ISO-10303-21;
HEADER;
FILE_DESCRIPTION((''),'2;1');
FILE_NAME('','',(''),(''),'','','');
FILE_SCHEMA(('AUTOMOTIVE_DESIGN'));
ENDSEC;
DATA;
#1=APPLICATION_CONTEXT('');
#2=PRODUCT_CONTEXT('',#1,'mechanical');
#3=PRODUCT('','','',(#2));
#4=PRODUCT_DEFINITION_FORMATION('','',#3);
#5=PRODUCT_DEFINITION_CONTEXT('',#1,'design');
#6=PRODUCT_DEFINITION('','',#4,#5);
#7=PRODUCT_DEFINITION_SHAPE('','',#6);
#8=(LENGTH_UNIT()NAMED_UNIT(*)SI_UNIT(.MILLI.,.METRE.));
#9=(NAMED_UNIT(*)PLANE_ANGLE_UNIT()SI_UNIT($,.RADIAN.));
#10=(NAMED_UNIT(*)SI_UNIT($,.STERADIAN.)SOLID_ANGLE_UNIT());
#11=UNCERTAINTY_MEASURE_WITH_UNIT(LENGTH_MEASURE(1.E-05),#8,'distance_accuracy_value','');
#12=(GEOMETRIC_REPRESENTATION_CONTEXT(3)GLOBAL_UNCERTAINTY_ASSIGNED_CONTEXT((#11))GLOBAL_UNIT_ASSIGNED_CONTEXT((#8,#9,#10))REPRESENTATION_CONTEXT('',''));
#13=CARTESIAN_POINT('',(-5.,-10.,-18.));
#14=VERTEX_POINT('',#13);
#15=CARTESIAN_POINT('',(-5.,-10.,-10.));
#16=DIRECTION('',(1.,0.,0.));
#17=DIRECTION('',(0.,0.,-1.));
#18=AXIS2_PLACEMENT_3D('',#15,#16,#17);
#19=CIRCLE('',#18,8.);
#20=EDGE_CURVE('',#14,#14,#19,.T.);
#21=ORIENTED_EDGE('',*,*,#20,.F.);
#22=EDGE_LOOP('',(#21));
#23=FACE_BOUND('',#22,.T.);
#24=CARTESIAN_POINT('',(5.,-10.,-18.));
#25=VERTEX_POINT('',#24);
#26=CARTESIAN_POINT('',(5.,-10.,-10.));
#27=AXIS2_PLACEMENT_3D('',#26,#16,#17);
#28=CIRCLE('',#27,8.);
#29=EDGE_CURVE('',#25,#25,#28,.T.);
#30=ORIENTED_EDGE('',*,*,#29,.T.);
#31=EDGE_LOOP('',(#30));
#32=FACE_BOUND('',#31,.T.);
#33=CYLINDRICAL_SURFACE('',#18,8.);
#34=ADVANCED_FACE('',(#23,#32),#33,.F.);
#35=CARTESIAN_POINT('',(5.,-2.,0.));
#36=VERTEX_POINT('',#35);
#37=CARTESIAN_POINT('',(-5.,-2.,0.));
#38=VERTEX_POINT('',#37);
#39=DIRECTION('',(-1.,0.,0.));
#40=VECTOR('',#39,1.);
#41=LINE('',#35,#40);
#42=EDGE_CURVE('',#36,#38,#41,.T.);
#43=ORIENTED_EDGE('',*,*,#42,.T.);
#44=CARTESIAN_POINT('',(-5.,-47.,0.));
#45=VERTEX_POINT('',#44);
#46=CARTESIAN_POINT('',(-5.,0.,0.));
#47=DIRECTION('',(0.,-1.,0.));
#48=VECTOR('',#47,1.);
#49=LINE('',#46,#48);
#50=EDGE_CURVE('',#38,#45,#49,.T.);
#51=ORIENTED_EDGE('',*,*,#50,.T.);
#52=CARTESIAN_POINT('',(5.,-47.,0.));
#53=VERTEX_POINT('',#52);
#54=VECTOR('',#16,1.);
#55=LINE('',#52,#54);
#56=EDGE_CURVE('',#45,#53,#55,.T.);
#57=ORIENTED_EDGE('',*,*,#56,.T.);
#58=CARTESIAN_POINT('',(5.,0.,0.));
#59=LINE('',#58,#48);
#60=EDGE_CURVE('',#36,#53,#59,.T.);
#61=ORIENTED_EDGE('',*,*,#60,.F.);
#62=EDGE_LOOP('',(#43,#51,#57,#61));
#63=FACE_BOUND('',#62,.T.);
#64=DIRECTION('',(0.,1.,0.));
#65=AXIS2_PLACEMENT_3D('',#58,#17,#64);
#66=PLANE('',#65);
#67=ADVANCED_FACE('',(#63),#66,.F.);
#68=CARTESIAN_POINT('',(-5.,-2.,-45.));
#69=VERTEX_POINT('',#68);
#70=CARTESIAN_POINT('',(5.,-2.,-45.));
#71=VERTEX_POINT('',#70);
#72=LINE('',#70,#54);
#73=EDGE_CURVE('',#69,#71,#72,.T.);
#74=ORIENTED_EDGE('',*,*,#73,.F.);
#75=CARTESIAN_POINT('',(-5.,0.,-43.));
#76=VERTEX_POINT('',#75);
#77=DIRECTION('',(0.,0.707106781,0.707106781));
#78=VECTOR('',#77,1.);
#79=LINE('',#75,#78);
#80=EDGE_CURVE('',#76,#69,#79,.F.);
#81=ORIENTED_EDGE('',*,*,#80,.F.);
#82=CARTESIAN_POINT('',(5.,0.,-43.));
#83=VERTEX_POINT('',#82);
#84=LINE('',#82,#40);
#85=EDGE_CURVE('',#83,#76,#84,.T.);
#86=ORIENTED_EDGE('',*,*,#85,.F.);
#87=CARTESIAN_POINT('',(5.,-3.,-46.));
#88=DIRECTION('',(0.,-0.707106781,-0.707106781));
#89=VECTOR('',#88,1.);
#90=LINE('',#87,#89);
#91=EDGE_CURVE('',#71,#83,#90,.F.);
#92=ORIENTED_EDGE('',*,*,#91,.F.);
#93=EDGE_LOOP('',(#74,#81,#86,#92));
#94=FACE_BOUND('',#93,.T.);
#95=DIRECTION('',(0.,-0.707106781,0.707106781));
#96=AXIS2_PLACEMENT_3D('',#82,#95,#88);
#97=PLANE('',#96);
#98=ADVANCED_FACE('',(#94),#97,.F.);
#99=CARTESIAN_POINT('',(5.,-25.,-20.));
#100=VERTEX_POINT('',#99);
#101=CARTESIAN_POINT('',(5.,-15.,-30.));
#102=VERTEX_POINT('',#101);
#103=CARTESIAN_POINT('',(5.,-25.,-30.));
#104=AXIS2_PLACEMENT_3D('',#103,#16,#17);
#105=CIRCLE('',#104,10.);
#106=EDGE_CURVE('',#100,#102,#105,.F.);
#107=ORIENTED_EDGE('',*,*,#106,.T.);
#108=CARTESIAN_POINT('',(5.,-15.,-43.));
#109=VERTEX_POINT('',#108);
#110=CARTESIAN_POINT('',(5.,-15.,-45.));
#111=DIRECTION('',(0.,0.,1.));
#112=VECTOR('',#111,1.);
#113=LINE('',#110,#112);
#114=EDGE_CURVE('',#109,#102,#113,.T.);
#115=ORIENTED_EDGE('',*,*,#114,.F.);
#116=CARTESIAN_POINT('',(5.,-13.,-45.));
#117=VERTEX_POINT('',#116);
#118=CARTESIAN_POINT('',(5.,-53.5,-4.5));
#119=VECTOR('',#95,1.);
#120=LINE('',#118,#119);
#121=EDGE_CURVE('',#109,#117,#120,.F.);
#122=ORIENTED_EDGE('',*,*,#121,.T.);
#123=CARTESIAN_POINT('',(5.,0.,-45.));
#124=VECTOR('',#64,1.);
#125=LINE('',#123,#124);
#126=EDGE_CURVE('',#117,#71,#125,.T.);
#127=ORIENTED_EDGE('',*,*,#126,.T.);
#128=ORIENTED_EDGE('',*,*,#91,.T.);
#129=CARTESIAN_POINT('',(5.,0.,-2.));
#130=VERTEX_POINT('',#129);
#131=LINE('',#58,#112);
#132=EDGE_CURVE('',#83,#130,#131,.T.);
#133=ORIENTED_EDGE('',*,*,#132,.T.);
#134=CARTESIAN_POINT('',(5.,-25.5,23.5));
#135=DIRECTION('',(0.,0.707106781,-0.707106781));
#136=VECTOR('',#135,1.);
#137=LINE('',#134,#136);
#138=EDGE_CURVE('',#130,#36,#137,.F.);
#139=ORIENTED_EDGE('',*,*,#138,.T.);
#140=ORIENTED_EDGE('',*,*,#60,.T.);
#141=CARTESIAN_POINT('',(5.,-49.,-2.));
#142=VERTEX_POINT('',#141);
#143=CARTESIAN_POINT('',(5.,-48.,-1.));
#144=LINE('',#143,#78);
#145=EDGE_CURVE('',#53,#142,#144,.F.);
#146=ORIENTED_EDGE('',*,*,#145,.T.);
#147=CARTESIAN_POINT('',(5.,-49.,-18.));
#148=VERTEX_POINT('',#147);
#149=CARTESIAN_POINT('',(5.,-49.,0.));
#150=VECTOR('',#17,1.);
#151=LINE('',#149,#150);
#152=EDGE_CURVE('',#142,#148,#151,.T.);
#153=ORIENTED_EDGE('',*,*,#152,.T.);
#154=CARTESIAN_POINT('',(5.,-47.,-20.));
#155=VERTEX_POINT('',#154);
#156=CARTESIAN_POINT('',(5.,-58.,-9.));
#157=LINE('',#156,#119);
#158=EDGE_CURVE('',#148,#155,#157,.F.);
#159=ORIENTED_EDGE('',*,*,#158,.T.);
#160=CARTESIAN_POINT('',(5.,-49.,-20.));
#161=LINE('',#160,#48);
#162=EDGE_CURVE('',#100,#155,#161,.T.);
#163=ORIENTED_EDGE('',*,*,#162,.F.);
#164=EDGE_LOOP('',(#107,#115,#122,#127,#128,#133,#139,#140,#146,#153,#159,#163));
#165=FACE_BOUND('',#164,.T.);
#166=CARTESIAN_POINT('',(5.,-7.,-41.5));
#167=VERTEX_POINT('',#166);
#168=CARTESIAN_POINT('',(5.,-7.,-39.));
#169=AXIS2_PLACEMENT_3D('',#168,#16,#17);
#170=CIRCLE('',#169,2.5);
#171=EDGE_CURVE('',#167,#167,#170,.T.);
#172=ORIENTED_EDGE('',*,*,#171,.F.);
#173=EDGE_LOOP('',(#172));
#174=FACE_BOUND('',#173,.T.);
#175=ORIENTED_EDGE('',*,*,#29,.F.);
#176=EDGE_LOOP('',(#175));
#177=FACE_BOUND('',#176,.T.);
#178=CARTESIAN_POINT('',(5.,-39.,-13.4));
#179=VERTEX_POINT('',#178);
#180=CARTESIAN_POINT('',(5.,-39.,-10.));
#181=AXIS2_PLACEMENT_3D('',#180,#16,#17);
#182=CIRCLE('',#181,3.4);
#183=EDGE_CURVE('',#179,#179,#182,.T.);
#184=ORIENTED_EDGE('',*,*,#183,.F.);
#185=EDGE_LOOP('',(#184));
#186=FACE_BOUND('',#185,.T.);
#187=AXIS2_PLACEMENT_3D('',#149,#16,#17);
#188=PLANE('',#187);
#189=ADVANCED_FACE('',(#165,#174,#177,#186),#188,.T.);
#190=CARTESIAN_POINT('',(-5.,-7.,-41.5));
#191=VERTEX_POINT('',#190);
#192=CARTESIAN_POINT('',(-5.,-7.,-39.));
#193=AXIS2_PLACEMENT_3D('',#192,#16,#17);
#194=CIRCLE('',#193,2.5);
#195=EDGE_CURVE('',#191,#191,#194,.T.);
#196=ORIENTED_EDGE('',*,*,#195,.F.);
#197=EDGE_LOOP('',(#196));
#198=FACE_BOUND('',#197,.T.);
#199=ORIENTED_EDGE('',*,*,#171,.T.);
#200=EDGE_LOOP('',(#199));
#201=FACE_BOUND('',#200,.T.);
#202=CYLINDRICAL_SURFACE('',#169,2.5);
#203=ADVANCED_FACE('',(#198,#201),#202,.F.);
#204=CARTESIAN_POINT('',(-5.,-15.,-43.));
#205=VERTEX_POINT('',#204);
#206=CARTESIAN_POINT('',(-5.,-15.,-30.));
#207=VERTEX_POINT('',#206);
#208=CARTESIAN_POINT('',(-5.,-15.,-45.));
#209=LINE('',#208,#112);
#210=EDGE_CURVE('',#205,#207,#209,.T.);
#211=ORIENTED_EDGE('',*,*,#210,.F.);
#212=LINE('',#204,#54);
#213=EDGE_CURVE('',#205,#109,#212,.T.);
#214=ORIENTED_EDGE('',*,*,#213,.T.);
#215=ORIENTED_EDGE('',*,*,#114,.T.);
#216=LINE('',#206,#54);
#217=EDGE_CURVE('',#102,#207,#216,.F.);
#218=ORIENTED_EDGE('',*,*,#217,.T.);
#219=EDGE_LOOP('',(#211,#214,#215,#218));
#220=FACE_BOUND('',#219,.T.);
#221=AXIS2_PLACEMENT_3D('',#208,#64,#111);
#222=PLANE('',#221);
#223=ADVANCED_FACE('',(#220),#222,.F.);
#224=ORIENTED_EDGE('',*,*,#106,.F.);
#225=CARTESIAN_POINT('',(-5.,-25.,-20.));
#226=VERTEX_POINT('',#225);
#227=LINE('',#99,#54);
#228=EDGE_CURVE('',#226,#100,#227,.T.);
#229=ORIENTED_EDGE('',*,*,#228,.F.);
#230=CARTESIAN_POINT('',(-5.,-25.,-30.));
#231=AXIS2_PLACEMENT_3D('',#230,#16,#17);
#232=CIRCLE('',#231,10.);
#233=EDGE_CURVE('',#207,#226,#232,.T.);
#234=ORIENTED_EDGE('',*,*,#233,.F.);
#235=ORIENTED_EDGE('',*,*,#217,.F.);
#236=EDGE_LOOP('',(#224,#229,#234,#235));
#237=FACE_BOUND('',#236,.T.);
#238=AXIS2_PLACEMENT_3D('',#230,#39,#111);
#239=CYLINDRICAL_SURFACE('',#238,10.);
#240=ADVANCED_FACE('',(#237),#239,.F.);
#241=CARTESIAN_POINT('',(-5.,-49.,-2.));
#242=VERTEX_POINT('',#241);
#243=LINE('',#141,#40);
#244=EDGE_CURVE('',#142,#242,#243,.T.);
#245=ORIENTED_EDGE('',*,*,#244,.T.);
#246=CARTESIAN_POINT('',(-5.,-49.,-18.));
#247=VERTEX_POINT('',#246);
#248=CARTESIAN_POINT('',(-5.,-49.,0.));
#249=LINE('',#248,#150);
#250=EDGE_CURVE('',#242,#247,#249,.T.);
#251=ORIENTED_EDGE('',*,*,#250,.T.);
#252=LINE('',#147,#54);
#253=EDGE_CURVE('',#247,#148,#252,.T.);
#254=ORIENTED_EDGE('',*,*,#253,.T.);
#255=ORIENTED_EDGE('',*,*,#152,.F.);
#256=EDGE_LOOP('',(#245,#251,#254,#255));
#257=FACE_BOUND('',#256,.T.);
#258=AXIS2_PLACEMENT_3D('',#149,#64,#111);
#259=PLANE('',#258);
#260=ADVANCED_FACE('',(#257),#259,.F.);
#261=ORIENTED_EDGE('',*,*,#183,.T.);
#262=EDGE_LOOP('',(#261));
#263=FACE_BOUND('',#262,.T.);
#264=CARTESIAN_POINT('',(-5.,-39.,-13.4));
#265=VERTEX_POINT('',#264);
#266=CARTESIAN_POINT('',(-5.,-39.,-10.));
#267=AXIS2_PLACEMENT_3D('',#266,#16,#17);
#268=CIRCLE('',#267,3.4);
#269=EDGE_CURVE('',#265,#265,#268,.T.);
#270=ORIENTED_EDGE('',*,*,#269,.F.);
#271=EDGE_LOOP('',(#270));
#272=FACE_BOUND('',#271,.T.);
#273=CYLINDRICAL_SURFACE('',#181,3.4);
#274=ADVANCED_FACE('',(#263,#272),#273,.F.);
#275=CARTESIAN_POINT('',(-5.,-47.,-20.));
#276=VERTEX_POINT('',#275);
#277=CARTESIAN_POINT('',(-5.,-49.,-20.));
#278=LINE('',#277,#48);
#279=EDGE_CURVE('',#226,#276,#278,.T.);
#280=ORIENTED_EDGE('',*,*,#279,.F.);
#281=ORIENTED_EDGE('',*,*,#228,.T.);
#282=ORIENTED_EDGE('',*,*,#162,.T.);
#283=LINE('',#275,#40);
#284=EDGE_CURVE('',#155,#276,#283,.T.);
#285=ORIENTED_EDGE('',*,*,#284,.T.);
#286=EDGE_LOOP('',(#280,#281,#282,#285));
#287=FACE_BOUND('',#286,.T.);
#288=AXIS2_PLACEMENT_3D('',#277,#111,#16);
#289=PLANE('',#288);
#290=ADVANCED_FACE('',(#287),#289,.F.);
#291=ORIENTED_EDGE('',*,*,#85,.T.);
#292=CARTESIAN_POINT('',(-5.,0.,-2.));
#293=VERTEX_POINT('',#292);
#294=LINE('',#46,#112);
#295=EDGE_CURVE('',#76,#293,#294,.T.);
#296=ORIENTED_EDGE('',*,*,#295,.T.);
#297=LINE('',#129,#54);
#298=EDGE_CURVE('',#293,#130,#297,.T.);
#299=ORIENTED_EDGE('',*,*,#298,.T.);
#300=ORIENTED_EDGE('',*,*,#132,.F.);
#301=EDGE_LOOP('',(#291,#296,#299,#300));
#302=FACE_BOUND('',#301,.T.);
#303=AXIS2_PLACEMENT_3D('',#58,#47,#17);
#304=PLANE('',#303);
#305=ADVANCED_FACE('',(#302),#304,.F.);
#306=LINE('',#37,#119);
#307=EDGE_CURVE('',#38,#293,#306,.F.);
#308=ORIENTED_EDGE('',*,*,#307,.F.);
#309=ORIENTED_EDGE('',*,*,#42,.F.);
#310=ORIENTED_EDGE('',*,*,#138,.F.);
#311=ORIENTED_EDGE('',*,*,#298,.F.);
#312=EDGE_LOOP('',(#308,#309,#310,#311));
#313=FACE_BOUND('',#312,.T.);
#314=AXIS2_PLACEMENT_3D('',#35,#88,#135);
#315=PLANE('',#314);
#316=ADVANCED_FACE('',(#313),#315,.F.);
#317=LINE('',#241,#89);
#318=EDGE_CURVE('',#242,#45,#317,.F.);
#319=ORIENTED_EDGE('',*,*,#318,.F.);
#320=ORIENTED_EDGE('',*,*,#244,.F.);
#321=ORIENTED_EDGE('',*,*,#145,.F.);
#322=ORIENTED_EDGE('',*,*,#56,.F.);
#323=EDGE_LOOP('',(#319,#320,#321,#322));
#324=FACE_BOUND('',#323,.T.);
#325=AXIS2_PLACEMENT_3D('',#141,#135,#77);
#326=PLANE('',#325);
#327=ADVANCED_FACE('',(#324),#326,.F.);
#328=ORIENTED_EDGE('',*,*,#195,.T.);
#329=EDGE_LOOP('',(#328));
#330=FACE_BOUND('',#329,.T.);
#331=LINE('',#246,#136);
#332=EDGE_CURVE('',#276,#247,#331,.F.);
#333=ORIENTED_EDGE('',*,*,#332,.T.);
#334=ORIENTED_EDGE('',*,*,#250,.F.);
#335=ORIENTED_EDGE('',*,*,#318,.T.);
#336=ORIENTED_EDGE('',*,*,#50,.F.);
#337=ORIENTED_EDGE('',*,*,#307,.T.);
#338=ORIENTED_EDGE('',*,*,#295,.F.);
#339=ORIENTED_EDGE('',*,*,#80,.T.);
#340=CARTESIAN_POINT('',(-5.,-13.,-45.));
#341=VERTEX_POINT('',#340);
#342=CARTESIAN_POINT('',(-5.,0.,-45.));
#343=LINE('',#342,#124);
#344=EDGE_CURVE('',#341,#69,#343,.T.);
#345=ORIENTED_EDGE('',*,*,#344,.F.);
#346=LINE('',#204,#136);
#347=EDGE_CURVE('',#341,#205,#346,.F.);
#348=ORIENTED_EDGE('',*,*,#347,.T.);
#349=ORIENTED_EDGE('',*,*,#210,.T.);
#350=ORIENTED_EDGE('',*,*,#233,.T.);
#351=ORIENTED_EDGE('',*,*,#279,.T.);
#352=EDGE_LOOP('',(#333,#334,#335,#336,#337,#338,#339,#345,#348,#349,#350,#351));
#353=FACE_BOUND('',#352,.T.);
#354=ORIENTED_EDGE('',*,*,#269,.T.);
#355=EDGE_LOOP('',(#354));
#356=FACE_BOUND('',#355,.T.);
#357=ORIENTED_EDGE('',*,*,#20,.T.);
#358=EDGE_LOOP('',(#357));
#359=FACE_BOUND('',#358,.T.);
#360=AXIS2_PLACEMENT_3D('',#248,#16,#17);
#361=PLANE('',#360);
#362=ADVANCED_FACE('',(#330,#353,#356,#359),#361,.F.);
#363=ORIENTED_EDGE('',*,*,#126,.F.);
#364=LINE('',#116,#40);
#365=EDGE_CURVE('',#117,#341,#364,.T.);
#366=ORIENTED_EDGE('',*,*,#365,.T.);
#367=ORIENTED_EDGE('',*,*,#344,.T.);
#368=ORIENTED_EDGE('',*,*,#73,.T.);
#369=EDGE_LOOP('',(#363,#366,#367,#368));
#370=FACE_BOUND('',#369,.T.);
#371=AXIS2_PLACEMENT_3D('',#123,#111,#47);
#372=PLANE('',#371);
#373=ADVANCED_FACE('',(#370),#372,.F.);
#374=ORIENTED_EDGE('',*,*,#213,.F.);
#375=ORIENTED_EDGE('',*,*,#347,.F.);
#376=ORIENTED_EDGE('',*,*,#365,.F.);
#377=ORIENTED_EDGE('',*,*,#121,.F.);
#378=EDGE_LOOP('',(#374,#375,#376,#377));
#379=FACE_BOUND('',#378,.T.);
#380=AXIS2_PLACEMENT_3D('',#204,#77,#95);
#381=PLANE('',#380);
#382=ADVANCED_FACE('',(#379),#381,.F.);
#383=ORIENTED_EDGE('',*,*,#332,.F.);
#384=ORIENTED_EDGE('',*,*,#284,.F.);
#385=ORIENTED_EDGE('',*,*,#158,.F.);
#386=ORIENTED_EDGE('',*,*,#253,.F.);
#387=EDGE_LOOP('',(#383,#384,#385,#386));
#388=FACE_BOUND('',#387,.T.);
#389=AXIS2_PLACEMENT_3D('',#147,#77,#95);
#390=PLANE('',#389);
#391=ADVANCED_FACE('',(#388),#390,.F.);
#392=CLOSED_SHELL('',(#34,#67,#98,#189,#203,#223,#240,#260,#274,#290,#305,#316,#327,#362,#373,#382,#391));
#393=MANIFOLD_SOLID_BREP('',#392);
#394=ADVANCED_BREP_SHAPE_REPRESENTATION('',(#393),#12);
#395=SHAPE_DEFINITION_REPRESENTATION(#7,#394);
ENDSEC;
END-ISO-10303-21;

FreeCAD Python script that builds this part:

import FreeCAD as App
import Part
import Sketcher
from FreeCAD import Vector
Q = App.Units.Quantity


def edges_at(feature, points):
    """Names of the edges that pass closest to the given points."""
    edges = feature.Shape.Edges
    near = lambda p: min(range(len(edges)), key=lambda i: edges[i].distToShape(Part.Vertex(*p))[0])
    return sorted({f"Edge{near(p) + 1}" for p in points})


def add_polygon(sketch, points):
    """Adds a closed chain of lines whose ends are joined by coincident constraints."""
    first, n = sketch.GeometryCount, len(points)
    for a, b in zip(points, points[1:] + points[:1]):
        sketch.addGeometry(Part.LineSegment(App.Vector(*a, 0), App.Vector(*b, 0)), False)
    for i in range(n):
        sketch.addConstraint(Sketcher.Constraint("Coincident", first + i, 2, first + (i + 1) % n, 1))

doc = App.newDocument("Part")
body = doc.addObject("PartDesign::Body", "Body")

sketch1 = body.newObject("Sketcher::SketchObject", "Sketch")
sketch1.AttachmentSupport = (doc.getObject("YZ_Plane"), [""])
sketch1.MapMode = "FlatFace"
add_polygon(sketch1, [(0, 0), (-49, 0), (-49, -45), (0, -45)])
sketch1.addConstraint([
    Sketcher.Constraint("Horizontal", 0),
    Sketcher.Constraint("Vertical", 1),
    Sketcher.Constraint("Horizontal", 2),
    Sketcher.Constraint("Vertical", 3),
    Sketcher.Constraint("Coincident", 3, 2, -1, 1),
    Sketcher.Constraint("DistanceX", 0, 2, 0, 1, Q("49 mm")),
    Sketcher.Constraint("DistanceY", 1, 2, 1, 1, Q("45 mm")),
])
pad1 = body.newObject("PartDesign::Pad", "Pad")
pad1.Profile = sketch1
pad1.Length = 10
pad1.Midplane = True

sketch2 = body.newObject("Sketcher::SketchObject", "Sketch001")
sketch2.AttachmentSupport = (doc.getObject("YZ_Plane"), [""])
sketch2.MapMode = "FlatFace"
sketch2.AttachmentOffset = App.Placement(Vector(0, 0, 5), App.Rotation())
add_polygon(sketch2, [(-15, -20), (-49, -20), (-49, -45), (-15, -45)])
sketch2.addConstraint([
    Sketcher.Constraint("Horizontal", 0),
    Sketcher.Constraint("Vertical", 1),
    Sketcher.Constraint("Horizontal", 2),
    Sketcher.Constraint("Vertical", 3),
    Sketcher.Constraint("DistanceX", 0, 2, 0, 1, Q("34 mm")),
    Sketcher.Constraint("DistanceY", 1, 2, 1, 1, Q("25 mm")),
    Sketcher.Constraint("DistanceX", 0, 2, -1, 1, Q("49 mm")),
    Sketcher.Constraint("DistanceY", 0, 2, -1, 1, Q("20 mm")),
])
pocket1 = body.newObject("PartDesign::Pocket", "Pocket")
pocket1.Profile = sketch2
pocket1.Type = "ThroughAll"

sketch3 = body.newObject("Sketcher::SketchObject", "Sketch002")
sketch3.AttachmentSupport = (doc.getObject("YZ_Plane"), [""])
sketch3.MapMode = "FlatFace"
sketch3.AttachmentOffset = App.Placement(Vector(0, 0, 5), App.Rotation())
sketch3.addGeometry(Part.Circle(Vector(-10, -10, 0), Vector(0, 0, 1), 8), False)
sketch3.addConstraint([
    Sketcher.Constraint("Diameter", 0, Q("16 mm")),
    Sketcher.Constraint("DistanceX", 0, 3, -1, 1, Q("10 mm")),
    Sketcher.Constraint("DistanceY", 0, 3, -1, 1, Q("10 mm")),
])
pocket2 = body.newObject("PartDesign::Pocket", "Pocket001")
pocket2.Profile = sketch3
pocket2.Type = "ThroughAll"

sketch4 = body.newObject("Sketcher::SketchObject", "Sketch003")
sketch4.AttachmentSupport = (doc.getObject("YZ_Plane"), [""])
sketch4.MapMode = "FlatFace"
sketch4.AttachmentOffset = App.Placement(Vector(0, 0, 5), App.Rotation())
sketch4.addGeometry(Part.Circle(Vector(-39, -10, 0), Vector(0, 0, 1), 3.4), False)
sketch4.addConstraint([
    Sketcher.Constraint("Diameter", 0, Q("6.8 mm")),
    Sketcher.Constraint("DistanceX", 0, 3, -1, 1, Q("39 mm")),
    Sketcher.Constraint("DistanceY", 0, 3, -1, 1, Q("10 mm")),
])
doc.recompute()
hole = body.newObject("PartDesign::Hole", "Hole")
hole.Profile = sketch4
hole.ThreadType = "None"
hole.Diameter = 6.8
hole.DepthType = "ThroughAll"

sketch5 = body.newObject("Sketcher::SketchObject", "Sketch004")
sketch5.AttachmentSupport = (doc.getObject("YZ_Plane"), [""])
sketch5.MapMode = "FlatFace"
sketch5.AttachmentOffset = App.Placement(Vector(0, 0, 5), App.Rotation())
sketch5.addGeometry(Part.Circle(Vector(-7, -39, 0), Vector(0, 0, 1), 2.5), False)
sketch5.addConstraint([
    Sketcher.Constraint("Diameter", 0, Q("5 mm")),
    Sketcher.Constraint("DistanceX", 0, 3, -1, 1, Q("7 mm")),
    Sketcher.Constraint("DistanceY", 0, 3, -1, 1, Q("39 mm")),
])
doc.recompute()
hole2 = body.newObject("PartDesign::Hole", "Hole001")
hole2.Profile = sketch5
hole2.ThreadType = "None"
hole2.Diameter = 5
hole2.DepthType = "ThroughAll"
doc.recompute()

fillet = body.newObject("PartDesign::Fillet", "Fillet")
fillet.Base = (hole2, edges_at(hole2, [(0, -15, -20)]))
fillet.Radius = 10
doc.recompute()

chamfer = body.newObject("PartDesign::Chamfer", "Chamfer")
chamfer.Base = (fillet, edges_at(fillet, [
    (0, -15, -45),
    (0, -49, -20),
    (0, 0, 0),
    (0, 0, -45),
    (0, -49, 0),
]))
chamfer.Size = 2

doc.recompute()
